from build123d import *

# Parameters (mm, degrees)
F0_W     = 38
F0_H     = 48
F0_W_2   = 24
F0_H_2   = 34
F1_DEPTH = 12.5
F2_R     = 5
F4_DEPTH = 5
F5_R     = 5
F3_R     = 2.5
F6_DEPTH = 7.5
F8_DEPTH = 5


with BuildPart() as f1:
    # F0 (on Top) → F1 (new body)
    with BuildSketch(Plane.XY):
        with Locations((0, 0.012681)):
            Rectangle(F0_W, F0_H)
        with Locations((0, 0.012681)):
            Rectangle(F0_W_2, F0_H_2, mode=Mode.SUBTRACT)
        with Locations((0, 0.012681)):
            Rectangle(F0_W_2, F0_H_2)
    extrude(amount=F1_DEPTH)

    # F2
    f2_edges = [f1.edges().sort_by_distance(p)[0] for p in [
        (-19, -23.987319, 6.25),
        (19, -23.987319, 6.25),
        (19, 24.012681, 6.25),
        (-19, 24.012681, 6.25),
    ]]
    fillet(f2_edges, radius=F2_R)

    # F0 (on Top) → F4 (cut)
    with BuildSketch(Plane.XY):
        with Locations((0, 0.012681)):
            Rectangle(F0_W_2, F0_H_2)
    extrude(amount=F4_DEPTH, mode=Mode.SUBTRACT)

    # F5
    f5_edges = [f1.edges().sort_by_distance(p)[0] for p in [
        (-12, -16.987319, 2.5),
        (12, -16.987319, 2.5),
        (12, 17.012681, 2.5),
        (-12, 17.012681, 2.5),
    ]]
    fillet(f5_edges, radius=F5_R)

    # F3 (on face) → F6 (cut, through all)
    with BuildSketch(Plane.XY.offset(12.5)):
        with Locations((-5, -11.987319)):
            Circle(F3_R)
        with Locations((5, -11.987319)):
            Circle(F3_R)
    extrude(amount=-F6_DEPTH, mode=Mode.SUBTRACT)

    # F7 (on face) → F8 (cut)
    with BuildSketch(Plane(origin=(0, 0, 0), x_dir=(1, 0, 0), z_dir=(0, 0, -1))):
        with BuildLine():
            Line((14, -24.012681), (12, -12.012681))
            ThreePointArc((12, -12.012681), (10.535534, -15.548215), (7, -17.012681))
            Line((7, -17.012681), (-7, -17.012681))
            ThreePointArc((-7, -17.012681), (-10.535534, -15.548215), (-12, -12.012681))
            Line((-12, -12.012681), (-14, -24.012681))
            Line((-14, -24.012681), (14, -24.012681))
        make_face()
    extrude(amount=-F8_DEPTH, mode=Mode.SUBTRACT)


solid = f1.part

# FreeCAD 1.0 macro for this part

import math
import FreeCAD as App
import Part
import Sketcher

V = App.Vector
Q = App.Units.Quantity


def edges_at(feature, points):
    """Names of the edges that pass closest to the given points."""
    edges = feature.Shape.Edges
    near = lambda p: min(range(len(edges)), key=lambda i: edges[i].distToShape(Part.Vertex(*p))[0])
    return sorted({f"Edge{near(p) + 1}" for p in points})


def add_polygon(sketch, points):
    """Adds a closed chain of lines whose ends are joined by coincident constraints."""
    first, n = sketch.GeometryCount, len(points)
    for a, b in zip(points, points[1:] + points[:1]):
        sketch.addGeometry(Part.LineSegment(App.Vector(*a, 0), App.Vector(*b, 0)), False)
    for i in range(n):
        sketch.addConstraint(Sketcher.Constraint("Coincident", first + i, 2, first + (i + 1) % n, 1))

doc = App.newDocument("Part")
params = doc.addObject("Spreadsheet::Sheet", "Params")
for row, (alias, value) in enumerate([
    ("sketch1_width", "38 mm"),
    ("sketch1_height", "48 mm"),
    ("pad1_length", "12.5 mm"),
    ("fillet_radius", "5 mm"),
    ("sketch2_width", "24 mm"),
    ("sketch2_height", "34 mm"),
    ("pocket1_length", "5 mm"),
    ("fillet2_radius", "5 mm"),
    ("sketch3_diameter", "5 mm"),
    ("sketch4_radius", "5 mm"),
    ("sketch4_width", "14 mm"),
    ("sketch4_width2", "28 mm"),
    ("pocket3_length", "5 mm"),
], start=1):
    params.set(f"A{row}", alias)
    params.set(f"B{row}", "=" + value)
    params.setAlias(f"B{row}", alias)

body = doc.addObject("PartDesign::Body", "Body")

# Sketch on XY plane
sketch1 = body.newObject("Sketcher::SketchObject", "Sketch")
sketch1.AttachmentSupport = (doc.getObject("XY_Plane"), [""])
sketch1.MapMode = "FlatFace"
add_polygon(sketch1, [(-19, 24.012681), (-19, -23.987319), (19, -23.987319), (19, 24.012681)])  # lines 0-3
sketch1.addConstraint([
    Sketcher.Constraint("Vertical", 0),
    Sketcher.Constraint("Horizontal", 1),
    Sketcher.Constraint("Vertical", 2),
    Sketcher.Constraint("Horizontal", 3),
    Sketcher.Constraint("DistanceX", 1, 1, 1, 2, Q("38 mm")),
    Sketcher.Constraint("DistanceY", 0, 2, 0, 1, Q("48 mm")),
    Sketcher.Constraint("DistanceX", 0, 2, -1, 1, Q("19 mm")),
    Sketcher.Constraint("DistanceY", 0, 2, -1, 1, Q("23.987319 mm")),
])
sketch1.setExpression("Constraints[8]", "Params.sketch1_width")
sketch1.setExpression("Constraints[9]", "Params.sketch1_height")
pad1 = body.newObject("PartDesign::Pad", "Pad")
pad1.Profile = sketch1
pad1.setExpression("Length", "Params.pad1_length")
doc.recompute()

fillet = body.newObject("PartDesign::Fillet", "Fillet")
fillet.Base = (pad1, edges_at(pad1, [
    (-19, -23.987, 6.25),
    (19, -23.987, 6.25),
    (19, 24.013, 6.25),
    (-19, 24.013, 6.25),
]))
fillet.setExpression("Radius", "Params.fillet_radius")

# Sketch on XY plane
sketch2 = body.newObject("Sketcher::SketchObject", "Sketch001")
sketch2.AttachmentSupport = (doc.getObject("XY_Plane"), [""])
sketch2.MapMode = "FlatFace"
add_polygon(sketch2, [(-12, 17.012681), (-12, -16.987319), (12, -16.987319), (12, 17.012681)])  # lines 0-3
sketch2.addConstraint([
    Sketcher.Constraint("Vertical", 0),
    Sketcher.Constraint("Horizontal", 1),
    Sketcher.Constraint("Vertical", 2),
    Sketcher.Constraint("Horizontal", 3),
    Sketcher.Constraint("DistanceX", 1, 1, 1, 2, Q("24 mm")),
    Sketcher.Constraint("DistanceY", 0, 2, 0, 1, Q("34 mm")),
    Sketcher.Constraint("DistanceX", 0, 2, -1, 1, Q("12 mm")),
    Sketcher.Constraint("DistanceY", 0, 2, -1, 1, Q("16.987319 mm")),
])
sketch2.setExpression("Constraints[8]", "Params.sketch2_width")
sketch2.setExpression("Constraints[9]", "Params.sketch2_height")
pocket1 = body.newObject("PartDesign::Pocket", "Pocket")
pocket1.Profile = sketch2
pocket1.setExpression("Length", "Params.pocket1_length")
pocket1.Reversed = True
doc.recompute()

fillet2 = body.newObject("PartDesign::Fillet", "Fillet001")
fillet2.Base = (pocket1, edges_at(pocket1, [
    (-12, -16.987, 2.5),
    (12, -16.987, 2.5),
    (12, 17.013, 2.5),
    (-12, 17.013, 2.5),
]))
fillet2.setExpression("Radius", "Params.fillet2_radius")

# Sketch on XY plane
sketch3 = body.newObject("Sketcher::SketchObject", "Sketch002")
sketch3.AttachmentSupport = (doc.getObject("XY_Plane"), [""])
sketch3.MapMode = "FlatFace"
sketch3.AttachmentOffset = App.Placement(V(0, 0, 12.5), App.Rotation())
sketch3.addGeometry([
    Part.Circle(V(-5, -11.987319, 0), V(0, 0, 1), 2.5),
    Part.Circle(V(5, -11.987319, 0), V(0, 0, 1), 2.5),
], False)
sketch3.addConstraint([
    Sketcher.Constraint("Equal", 0, 1),
    Sketcher.Constraint("Symmetric", 0, 3, 1, 3, -2),
    Sketcher.Constraint("Diameter", 0, Q("5 mm")),
    Sketcher.Constraint("DistanceX", 0, 3, -1, 1, Q("5 mm")),
    Sketcher.Constraint("DistanceY", 0, 3, -1, 1, Q("11.987319 mm")),
])
sketch3.setExpression("Constraints[2]", "Params.sketch3_diameter")
pocket2 = body.newObject("PartDesign::Pocket", "Pocket001")
pocket2.Profile = sketch3
pocket2.Type = "ThroughAll"

# Sketch on XY plane
sketch4 = body.newObject("Sketcher::SketchObject", "Sketch003")
sketch4.AttachmentSupport = (doc.getObject("XY_Plane"), [""])
sketch4.MapMode = "FlatFace"
sketch4.addGeometry([
    Part.LineSegment(V(14, 24.012681, 0), V(12, 12.012681, 0)),  # 0
    Part.ArcOfCircle(Part.Circle(V(7, 12.012681, 0), V(0, 0, 1), 5), math.radians(-0.000004), math.radians(90.000004)),  # 1
    Part.LineSegment(V(7, 17.012681, 0), V(-7, 17.012681, 0)),  # 2
    Part.ArcOfCircle(Part.Circle(V(-7, 12.012681, 0), V(0, 0, 1), 5), math.radians(89.999996), math.radians(180.000004)),  # 3
    Part.LineSegment(V(-12, 12.012681, 0), V(-14, 24.012681, 0)),  # 4
    Part.LineSegment(V(-14, 24.012681, 0), V(14, 24.012681, 0)),  # 5
], False)
sketch4.addConstraint([
    Sketcher.Constraint("Coincident", 0, 2, 1, 1),
    Sketcher.Constraint("Tangent", 1, 2, 2, 1),
    Sketcher.Constraint("Tangent", 2, 2, 3, 1),
    Sketcher.Constraint("Coincident", 3, 2, 4, 1),
    Sketcher.Constraint("Coincident", 4, 2, 5, 1),
    Sketcher.Constraint("Coincident", 5, 2, 0, 1),
    Sketcher.Constraint("Horizontal", 2),
    Sketcher.Constraint("Horizontal", 5),
    Sketcher.Constraint("Equal", 1, 3),
    Sketcher.Constraint("Symmetric", 0, 2, 3, 2, -2),
    Sketcher.Constraint("Horizontal", 3, 3, 0, 2),
    Sketcher.Constraint("Equal", 0, 4),
    Sketcher.Constraint("Radius", 1, Q("5 mm")),
    Sketcher.Constraint("DistanceX", 2, 2, 2, 1, Q("14 mm")),
    Sketcher.Constraint("DistanceX", 5, 1, 5, 2, Q("28 mm")),
    Sketcher.Constraint("DistanceY", 2, 2, 4, 2, Q("7 mm")),
    Sketcher.Constraint("DistanceY", -1, 1, 1, 3, Q("12.012681 mm")),
])
sketch4.setExpression("Constraints[12]", "Params.sketch4_radius")
sketch4.setExpression("Constraints[13]", "Params.sketch4_width")
sketch4.setExpression("Constraints[14]", "Params.sketch4_width2")
pocket3 = body.newObject("PartDesign::Pocket", "Pocket002")
pocket3.Profile = sketch4
pocket3.setExpression("Length", "Params.pocket3_length")
pocket3.Reversed = True

doc.recompute()
